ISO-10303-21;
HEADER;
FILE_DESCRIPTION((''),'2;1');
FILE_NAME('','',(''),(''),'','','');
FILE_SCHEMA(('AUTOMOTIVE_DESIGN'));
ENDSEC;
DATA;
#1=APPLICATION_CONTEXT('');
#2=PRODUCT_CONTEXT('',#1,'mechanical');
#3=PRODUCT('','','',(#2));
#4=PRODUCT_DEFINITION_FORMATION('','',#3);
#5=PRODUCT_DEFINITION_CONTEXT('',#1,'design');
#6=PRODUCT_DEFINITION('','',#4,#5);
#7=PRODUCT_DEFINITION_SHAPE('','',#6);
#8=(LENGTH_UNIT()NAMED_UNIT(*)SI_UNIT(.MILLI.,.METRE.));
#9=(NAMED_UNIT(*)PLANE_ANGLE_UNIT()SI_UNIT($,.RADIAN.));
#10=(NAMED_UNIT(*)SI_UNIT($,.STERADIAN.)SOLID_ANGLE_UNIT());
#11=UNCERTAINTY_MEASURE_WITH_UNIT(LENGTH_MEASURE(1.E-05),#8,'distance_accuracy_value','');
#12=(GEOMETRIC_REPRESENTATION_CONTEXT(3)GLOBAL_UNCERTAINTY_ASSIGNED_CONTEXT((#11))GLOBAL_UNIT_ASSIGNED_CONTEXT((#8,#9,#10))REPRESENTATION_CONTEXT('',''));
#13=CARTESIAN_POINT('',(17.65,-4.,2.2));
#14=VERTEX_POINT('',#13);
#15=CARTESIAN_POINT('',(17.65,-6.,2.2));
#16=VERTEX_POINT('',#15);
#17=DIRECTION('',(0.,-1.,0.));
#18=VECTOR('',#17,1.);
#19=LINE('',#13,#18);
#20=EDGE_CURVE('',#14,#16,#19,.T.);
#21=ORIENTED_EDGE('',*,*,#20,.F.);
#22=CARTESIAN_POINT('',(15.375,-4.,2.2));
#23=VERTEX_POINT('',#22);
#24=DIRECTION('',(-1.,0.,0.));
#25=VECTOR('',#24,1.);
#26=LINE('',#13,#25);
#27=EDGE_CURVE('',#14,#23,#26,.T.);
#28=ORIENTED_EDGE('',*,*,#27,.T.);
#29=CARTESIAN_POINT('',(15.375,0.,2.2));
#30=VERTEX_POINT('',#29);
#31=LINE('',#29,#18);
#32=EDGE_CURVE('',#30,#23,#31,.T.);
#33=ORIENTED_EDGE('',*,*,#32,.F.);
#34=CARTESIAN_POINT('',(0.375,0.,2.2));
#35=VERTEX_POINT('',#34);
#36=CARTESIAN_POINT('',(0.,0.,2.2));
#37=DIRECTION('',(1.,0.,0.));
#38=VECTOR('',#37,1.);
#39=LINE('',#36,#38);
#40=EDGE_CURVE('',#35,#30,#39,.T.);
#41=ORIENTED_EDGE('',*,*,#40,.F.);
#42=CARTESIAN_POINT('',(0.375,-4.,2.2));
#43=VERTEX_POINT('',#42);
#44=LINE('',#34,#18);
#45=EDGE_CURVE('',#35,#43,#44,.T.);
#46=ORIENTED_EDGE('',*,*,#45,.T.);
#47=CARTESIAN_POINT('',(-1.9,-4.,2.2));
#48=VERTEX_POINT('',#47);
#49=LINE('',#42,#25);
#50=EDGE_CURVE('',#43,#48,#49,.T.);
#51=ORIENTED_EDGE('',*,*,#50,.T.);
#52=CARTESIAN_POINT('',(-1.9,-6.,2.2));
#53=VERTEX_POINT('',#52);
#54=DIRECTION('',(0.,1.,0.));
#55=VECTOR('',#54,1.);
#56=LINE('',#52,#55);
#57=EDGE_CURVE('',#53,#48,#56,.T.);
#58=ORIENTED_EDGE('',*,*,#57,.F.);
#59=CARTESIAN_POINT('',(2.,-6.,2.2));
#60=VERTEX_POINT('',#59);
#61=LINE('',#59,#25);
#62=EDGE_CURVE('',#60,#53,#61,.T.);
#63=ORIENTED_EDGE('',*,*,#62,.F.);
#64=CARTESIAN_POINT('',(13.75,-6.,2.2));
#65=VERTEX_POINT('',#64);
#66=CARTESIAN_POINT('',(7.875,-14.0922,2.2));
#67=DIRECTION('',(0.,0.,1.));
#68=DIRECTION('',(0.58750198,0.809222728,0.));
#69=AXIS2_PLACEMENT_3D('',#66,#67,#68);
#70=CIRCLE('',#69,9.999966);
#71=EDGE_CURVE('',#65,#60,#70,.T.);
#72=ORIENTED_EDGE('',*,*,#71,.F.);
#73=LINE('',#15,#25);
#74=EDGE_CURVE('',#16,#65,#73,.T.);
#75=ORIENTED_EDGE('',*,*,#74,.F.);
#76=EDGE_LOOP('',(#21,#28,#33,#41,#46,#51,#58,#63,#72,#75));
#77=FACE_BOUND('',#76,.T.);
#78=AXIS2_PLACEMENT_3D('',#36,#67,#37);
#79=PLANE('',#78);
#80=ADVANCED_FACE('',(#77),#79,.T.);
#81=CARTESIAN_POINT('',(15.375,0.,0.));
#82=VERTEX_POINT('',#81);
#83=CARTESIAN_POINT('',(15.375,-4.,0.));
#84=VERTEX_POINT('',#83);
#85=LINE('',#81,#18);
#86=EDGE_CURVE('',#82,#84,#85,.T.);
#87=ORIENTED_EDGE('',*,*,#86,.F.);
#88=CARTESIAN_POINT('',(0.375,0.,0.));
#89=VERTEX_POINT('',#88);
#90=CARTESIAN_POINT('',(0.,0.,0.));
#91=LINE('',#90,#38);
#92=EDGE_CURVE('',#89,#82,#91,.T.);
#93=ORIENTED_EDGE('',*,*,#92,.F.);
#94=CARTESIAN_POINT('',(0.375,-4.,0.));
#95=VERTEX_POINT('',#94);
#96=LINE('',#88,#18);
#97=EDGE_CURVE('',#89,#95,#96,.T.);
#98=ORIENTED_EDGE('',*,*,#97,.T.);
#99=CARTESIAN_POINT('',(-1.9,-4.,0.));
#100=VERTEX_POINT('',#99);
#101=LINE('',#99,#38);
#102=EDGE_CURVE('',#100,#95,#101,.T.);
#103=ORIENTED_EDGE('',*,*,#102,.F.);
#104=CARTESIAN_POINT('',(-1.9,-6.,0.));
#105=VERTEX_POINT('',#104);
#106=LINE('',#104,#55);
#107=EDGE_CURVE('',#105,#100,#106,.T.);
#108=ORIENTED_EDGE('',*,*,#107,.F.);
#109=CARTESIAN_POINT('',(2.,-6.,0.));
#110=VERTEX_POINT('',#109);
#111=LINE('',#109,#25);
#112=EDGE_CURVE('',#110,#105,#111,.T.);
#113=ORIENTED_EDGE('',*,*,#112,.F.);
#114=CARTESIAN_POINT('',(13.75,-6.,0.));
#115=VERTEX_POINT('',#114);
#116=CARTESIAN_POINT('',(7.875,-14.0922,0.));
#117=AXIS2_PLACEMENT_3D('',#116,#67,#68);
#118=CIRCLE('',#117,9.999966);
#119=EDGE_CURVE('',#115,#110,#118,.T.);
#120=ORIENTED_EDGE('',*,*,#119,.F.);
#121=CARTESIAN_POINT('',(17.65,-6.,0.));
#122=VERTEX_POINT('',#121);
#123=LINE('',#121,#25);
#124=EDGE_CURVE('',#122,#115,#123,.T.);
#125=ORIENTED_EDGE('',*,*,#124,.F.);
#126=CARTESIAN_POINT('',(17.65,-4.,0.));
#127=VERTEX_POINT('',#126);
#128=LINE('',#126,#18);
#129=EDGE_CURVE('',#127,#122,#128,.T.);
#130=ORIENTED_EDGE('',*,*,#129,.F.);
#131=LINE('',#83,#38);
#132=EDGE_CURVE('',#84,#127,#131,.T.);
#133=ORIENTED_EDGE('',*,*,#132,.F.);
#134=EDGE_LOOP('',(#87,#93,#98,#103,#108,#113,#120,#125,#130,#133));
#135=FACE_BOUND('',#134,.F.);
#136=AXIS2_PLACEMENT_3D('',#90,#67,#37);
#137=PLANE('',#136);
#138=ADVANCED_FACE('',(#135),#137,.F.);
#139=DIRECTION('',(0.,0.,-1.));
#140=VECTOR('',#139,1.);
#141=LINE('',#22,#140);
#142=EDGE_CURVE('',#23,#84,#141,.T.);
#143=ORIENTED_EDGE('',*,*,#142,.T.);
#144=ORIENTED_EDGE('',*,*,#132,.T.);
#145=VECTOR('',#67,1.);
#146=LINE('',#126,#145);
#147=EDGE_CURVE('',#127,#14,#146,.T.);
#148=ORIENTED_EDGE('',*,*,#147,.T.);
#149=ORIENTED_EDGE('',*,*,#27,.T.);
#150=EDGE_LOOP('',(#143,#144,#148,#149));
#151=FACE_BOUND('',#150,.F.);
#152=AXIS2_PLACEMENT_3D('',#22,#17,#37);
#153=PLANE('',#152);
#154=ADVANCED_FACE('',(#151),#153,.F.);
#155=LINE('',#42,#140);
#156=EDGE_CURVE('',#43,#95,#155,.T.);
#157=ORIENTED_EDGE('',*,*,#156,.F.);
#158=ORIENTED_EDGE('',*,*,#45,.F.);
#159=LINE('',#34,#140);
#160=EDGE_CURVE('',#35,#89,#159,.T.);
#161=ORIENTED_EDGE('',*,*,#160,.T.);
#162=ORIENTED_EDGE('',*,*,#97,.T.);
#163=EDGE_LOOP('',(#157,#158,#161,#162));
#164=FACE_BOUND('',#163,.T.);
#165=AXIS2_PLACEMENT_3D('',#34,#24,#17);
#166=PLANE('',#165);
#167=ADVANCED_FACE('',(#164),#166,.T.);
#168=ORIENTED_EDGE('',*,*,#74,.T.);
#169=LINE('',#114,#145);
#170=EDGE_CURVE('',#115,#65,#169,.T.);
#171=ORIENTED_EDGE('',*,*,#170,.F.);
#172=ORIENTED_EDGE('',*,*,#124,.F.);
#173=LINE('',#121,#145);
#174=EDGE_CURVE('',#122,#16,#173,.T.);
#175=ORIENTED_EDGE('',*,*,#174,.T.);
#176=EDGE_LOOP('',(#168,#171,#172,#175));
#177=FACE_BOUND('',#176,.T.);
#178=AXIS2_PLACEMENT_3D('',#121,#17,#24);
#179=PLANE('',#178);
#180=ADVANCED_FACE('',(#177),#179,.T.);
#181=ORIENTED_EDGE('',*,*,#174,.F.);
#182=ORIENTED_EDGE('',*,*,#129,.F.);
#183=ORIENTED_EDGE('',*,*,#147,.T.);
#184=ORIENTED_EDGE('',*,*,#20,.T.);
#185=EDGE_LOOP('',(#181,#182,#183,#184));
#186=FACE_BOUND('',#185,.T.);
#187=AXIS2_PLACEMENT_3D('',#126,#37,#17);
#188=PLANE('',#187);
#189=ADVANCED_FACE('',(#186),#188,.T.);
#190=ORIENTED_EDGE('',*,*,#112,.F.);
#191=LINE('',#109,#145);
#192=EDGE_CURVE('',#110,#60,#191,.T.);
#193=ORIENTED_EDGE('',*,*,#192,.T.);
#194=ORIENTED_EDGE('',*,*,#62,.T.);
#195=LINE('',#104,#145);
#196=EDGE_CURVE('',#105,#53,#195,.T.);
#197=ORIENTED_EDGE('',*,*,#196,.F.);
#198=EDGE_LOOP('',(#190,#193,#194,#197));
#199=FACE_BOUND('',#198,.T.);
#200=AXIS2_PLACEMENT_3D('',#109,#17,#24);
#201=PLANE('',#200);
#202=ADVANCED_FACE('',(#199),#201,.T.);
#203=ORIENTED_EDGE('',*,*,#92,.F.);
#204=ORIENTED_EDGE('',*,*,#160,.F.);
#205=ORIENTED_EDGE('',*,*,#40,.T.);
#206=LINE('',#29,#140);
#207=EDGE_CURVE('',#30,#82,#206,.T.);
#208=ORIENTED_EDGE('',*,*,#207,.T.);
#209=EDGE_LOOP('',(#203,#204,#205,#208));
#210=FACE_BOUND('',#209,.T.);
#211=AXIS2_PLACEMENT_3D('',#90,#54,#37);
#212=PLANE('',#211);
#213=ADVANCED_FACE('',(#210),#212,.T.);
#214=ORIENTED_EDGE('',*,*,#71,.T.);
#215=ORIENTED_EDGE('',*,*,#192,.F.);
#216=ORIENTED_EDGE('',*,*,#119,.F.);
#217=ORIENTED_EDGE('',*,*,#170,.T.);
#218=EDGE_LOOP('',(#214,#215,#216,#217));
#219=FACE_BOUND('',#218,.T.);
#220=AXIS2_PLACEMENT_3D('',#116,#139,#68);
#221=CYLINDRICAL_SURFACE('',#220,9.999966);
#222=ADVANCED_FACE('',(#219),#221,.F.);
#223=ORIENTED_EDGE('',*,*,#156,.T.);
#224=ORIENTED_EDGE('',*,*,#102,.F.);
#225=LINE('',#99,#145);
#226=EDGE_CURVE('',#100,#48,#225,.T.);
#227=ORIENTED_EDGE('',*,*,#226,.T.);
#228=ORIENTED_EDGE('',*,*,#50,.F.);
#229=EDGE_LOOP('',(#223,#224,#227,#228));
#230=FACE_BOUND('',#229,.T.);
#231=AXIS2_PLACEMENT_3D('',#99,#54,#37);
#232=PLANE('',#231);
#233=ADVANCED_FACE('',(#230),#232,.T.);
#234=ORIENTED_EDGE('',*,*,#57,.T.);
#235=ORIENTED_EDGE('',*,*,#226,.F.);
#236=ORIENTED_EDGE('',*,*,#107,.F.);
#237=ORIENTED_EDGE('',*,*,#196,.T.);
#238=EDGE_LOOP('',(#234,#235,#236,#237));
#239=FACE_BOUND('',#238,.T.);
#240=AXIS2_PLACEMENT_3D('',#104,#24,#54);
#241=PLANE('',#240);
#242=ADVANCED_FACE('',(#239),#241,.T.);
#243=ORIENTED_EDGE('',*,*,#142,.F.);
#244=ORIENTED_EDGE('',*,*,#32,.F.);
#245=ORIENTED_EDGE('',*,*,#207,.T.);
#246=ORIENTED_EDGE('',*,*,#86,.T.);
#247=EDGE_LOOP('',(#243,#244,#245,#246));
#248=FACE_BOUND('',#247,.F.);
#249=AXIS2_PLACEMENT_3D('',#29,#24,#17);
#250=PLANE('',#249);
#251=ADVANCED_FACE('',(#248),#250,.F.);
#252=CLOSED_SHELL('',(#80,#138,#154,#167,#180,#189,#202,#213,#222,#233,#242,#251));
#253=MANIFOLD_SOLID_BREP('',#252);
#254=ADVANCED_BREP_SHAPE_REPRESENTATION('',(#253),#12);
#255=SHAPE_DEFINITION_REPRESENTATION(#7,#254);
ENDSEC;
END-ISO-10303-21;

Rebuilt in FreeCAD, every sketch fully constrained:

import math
import FreeCAD as App
import Part
import Sketcher
from FreeCAD import Vector

doc = App.newDocument("Part")
body = doc.addObject("PartDesign::Body", "Body")

# Sketch on XY plane
sketch1 = doc.addObject("Sketcher::SketchObject", "Sketch")
body.addObject(sketch1)
sketch1.AttachmentSupport = (doc.XY_Plane, [""])
sketch1.MapMode = "FlatFace"
sketch1.addGeometry([
    Part.LineSegment(Vector(15.8, 0, 0), Vector(0, 0, 0)),  # 0
    Part.LineSegment(Vector(0, 0, 0), Vector(0, -4, 0)),  # 1
    Part.LineSegment(Vector(0, -4, 0), Vector(-1.9, -4, 0)),  # 2
    Part.LineSegment(Vector(-1.9, -4, 0), Vector(-1.9, -6, 0)),  # 3
    Part.LineSegment(Vector(-1.9, -6, 0), Vector(2, -6, 0)),  # 4
    Part.ArcOfCircle(Part.Circle(Vector(7.9, -14.1, 0), Vector(0, 0, 1), 10), math.radians(54), math.radians(126)),  # 5
    Part.LineSegment(Vector(13.8, -6, 0), Vector(17.6, -6, 0)),  # 6
    Part.LineSegment(Vector(17.6, -6, 0), Vector(17.6, -4, 0)),  # 7
    Part.LineSegment(Vector(17.6, -4, 0), Vector(15.8, -4, 0)),  # 8
    Part.LineSegment(Vector(15.8, -4, 0), Vector(15.8, 0, 0)),  # 9
], False)
sketch1.addConstraint([
    Sketcher.Constraint("Coincident", 0, 2, 1, 1),
    Sketcher.Constraint("Coincident", 1, 2, 2, 1),
    Sketcher.Constraint("Coincident", 2, 2, 3, 1),
    Sketcher.Constraint("Coincident", 3, 2, 4, 1),
    Sketcher.Constraint("Coincident", 4, 2, 5, 2),
    Sketcher.Constraint("Coincident", 5, 1, 6, 1),
    Sketcher.Constraint("Coincident", 6, 2, 7, 1),
    Sketcher.Constraint("Coincident", 7, 2, 8, 1),
    Sketcher.Constraint("Coincident", 8, 2, 9, 1),
    Sketcher.Constraint("Coincident", 9, 2, 0, 1),
    Sketcher.Constraint("Horizontal", 0),
    Sketcher.Constraint("Vertical", 1),
    Sketcher.Constraint("Horizontal", 2),
    Sketcher.Constraint("Vertical", 3),
    Sketcher.Constraint("Horizontal", 4),
    Sketcher.Constraint("Horizontal", 6),
    Sketcher.Constraint("Vertical", 7),
    Sketcher.Constraint("Horizontal", 8),
    Sketcher.Constraint("Vertical", 9),
    Sketcher.Constraint("Coincident", 0, 2, -1, 1),
    Sketcher.Constraint("Horizontal", 4, 2, 5, 1),
    Sketcher.Constraint("Horizontal", 2, 2, 7, 2),
    Sketcher.Constraint("Equal", 4, 6),
    Sketcher.Constraint("Equal", 2, 8),
    Sketcher.Constraint("Radius", 5, 10.0),
    Sketcher.Constraint("DistanceY", 1, 2, 1, 1, 4.0),
    Sketcher.Constraint("DistanceY", 3, 2, 3, 1, 2.0),
    Sketcher.Constraint("DistanceX", 2, 2, 2, 1, 1.9),
    Sketcher.Constraint("DistanceX", -1, 1, 4, 2, 2.0),
    Sketcher.Constraint("DistanceX", 0, 2, 0, 1, 15.75),
])
pad1 = doc.addObject("PartDesign::Pad", "Pad")
body.addObject(pad1)
pad1.Profile = sketch1
pad1.Length = 2.2

# Sketch on XY plane
sketch2 = doc.addObject("Sketcher::SketchObject", "Sketch001")
body.addObject(sketch2)
sketch2.AttachmentSupport = (doc.XY_Plane, [""])
sketch2.MapMode = "FlatFace"
sketch2.AttachmentOffset = App.Placement(Vector(0, 0, 2.2), App.Rotation())
sketch2.addGeometry([
    Part.LineSegment(Vector(15.75, 0, 0), Vector(15.38, 0, 0)),  # 0
    Part.LineSegment(Vector(15.38, 0, 0), Vector(15.38, -4, 0)),  # 1
    Part.LineSegment(Vector(15.38, -4, 0), Vector(15.75, -4, 0)),  # 2
    Part.LineSegment(Vector(15.75, -4, 0), Vector(15.75, 0, 0)),  # 3
    Part.LineSegment(Vector(0.38, 0, 0), Vector(0, 0, 0)),  # 4
    Part.LineSegment(Vector(0, 0, 0), Vector(0, -4, 0)),  # 5
    Part.LineSegment(Vector(0, -4, 0), Vector(0.38, -4, 0)),  # 6
    Part.LineSegment(Vector(0.38, -4, 0), Vector(0.38, 0, 0)),  # 7
], False)
sketch2.addConstraint([
    Sketcher.Constraint("Coincident", 0, 2, 1, 1),
    Sketcher.Constraint("Coincident", 1, 2, 2, 1),
    Sketcher.Constraint("Coincident", 2, 2, 3, 1),
    Sketcher.Constraint("Coincident", 3, 2, 0, 1),
    Sketcher.Constraint("Coincident", 4, 2, 5, 1),
    Sketcher.Constraint("Coincident", 5, 2, 6, 1),
    Sketcher.Constraint("Coincident", 6, 2, 7, 1),
    Sketcher.Constraint("Coincident", 7, 2, 4, 1),
    Sketcher.Constraint("Horizontal", 0),
    Sketcher.Constraint("Vertical", 1),
    Sketcher.Constraint("Horizontal", 2),
    Sketcher.Constraint("Vertical", 3),
    Sketcher.Constraint("Horizontal", 4),
    Sketcher.Constraint("Vertical", 5),
    Sketcher.Constraint("Horizontal", 6),
    Sketcher.Constraint("Vertical", 7),
    Sketcher.Constraint("Coincident", 4, 2, -1, 1),
    Sketcher.Constraint("PointOnObject", 0, 2, -1),
    Sketcher.Constraint("Horizontal", 2, 2, 5, 2),
    Sketcher.Constraint("Equal", 2, 4),
    Sketcher.Constraint("DistanceY", 1, 2, 1, 1, 4.0),
    Sketcher.Constraint("DistanceX", 6, 2, 1, 2, 15.0),
    Sketcher.Constraint("DistanceX", 0, 2, 0, 1, 0.375),
])
pocket1 = doc.addObject("PartDesign::Pocket", "Pocket")
body.addObject(pocket1)
pocket1.Profile = sketch2
pocket1.Length = 2.2

doc.recompute()
